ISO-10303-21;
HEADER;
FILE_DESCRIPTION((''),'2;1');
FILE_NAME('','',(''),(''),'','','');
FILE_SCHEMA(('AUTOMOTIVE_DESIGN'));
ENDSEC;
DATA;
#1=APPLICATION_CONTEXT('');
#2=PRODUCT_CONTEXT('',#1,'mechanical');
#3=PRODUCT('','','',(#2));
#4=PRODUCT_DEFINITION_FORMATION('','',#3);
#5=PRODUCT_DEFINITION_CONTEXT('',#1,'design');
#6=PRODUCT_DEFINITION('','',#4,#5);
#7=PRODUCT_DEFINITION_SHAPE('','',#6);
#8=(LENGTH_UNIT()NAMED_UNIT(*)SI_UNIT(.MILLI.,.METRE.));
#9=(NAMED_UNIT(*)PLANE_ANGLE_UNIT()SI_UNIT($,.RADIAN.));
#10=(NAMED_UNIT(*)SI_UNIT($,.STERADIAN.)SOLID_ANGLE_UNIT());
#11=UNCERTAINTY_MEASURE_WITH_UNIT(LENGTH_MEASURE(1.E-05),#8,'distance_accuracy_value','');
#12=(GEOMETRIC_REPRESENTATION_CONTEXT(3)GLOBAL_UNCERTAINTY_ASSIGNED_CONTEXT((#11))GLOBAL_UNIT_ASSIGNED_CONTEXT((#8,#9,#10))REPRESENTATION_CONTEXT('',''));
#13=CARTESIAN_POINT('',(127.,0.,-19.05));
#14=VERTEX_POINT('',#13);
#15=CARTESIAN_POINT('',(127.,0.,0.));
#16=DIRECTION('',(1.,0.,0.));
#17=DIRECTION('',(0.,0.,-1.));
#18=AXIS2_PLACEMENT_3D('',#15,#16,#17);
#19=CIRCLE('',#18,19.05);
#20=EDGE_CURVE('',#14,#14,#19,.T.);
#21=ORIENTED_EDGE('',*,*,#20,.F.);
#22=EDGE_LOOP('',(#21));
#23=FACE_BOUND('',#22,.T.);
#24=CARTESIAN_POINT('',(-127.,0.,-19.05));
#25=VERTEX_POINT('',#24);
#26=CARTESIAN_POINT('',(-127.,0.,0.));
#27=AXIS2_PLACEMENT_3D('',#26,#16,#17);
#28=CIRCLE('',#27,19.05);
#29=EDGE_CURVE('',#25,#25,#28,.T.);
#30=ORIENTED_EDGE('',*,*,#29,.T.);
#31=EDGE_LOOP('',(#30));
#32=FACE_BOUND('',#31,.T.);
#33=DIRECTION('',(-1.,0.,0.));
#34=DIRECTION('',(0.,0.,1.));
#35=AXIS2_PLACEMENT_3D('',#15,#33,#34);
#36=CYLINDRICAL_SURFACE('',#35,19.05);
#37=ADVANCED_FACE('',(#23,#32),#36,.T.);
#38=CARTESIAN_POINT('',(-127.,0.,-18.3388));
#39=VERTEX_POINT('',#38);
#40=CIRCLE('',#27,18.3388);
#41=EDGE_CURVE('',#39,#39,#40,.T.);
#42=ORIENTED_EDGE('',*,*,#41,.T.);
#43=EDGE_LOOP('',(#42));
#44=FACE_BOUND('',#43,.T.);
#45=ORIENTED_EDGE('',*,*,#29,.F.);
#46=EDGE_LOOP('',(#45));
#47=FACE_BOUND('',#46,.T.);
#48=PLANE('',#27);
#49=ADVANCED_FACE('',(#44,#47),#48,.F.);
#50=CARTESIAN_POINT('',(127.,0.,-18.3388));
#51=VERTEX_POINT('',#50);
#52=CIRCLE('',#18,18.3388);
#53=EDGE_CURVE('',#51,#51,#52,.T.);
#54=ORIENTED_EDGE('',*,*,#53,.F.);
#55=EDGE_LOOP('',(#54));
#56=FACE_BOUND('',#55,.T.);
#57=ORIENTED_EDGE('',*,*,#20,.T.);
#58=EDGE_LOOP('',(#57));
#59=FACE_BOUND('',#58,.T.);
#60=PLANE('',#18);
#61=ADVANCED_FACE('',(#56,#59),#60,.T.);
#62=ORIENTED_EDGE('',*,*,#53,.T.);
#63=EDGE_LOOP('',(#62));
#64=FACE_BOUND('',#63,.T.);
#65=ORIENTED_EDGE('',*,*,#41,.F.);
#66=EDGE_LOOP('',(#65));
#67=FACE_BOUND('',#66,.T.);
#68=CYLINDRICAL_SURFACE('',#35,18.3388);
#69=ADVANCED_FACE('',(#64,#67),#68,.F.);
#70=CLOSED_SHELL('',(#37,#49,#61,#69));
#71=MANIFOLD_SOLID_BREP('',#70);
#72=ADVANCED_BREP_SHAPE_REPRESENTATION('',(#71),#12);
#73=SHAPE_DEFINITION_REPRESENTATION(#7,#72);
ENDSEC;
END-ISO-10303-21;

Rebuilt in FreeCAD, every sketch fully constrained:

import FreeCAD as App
import Part
import Sketcher

V = App.Vector
Q = App.Units.Quantity

doc = App.newDocument("Part")
body = doc.addObject("PartDesign::Body", "Body")

# Sketch on YZ plane
sketch1 = body.newObject("Sketcher::SketchObject", "Sketch")
sketch1.AttachmentSupport = (doc.getObject("YZ_Plane"), [""])
sketch1.MapMode = "FlatFace"
sketch1.addGeometry([
    Part.Circle(V(0, 0, 0), V(0, 0, 1), 19),
    Part.Circle(V(0, 0, 0), V(0, 0, 1), 18),
], False)
sketch1.addConstraint([
    Sketcher.Constraint("Coincident", 0, 3, -1, 1),
    Sketcher.Constraint("Coincident", 1, 3, -1, 1),
    Sketcher.Constraint("Diameter", 0, Q("1.5 in")),
    Sketcher.Constraint("Diameter", 1, Q("1.444 in")),
])
pad1 = body.newObject("PartDesign::Pad", "Pad")
pad1.Profile = sketch1
pad1.Length = Q("10 in")
pad1.Midplane = True

doc.recompute()
